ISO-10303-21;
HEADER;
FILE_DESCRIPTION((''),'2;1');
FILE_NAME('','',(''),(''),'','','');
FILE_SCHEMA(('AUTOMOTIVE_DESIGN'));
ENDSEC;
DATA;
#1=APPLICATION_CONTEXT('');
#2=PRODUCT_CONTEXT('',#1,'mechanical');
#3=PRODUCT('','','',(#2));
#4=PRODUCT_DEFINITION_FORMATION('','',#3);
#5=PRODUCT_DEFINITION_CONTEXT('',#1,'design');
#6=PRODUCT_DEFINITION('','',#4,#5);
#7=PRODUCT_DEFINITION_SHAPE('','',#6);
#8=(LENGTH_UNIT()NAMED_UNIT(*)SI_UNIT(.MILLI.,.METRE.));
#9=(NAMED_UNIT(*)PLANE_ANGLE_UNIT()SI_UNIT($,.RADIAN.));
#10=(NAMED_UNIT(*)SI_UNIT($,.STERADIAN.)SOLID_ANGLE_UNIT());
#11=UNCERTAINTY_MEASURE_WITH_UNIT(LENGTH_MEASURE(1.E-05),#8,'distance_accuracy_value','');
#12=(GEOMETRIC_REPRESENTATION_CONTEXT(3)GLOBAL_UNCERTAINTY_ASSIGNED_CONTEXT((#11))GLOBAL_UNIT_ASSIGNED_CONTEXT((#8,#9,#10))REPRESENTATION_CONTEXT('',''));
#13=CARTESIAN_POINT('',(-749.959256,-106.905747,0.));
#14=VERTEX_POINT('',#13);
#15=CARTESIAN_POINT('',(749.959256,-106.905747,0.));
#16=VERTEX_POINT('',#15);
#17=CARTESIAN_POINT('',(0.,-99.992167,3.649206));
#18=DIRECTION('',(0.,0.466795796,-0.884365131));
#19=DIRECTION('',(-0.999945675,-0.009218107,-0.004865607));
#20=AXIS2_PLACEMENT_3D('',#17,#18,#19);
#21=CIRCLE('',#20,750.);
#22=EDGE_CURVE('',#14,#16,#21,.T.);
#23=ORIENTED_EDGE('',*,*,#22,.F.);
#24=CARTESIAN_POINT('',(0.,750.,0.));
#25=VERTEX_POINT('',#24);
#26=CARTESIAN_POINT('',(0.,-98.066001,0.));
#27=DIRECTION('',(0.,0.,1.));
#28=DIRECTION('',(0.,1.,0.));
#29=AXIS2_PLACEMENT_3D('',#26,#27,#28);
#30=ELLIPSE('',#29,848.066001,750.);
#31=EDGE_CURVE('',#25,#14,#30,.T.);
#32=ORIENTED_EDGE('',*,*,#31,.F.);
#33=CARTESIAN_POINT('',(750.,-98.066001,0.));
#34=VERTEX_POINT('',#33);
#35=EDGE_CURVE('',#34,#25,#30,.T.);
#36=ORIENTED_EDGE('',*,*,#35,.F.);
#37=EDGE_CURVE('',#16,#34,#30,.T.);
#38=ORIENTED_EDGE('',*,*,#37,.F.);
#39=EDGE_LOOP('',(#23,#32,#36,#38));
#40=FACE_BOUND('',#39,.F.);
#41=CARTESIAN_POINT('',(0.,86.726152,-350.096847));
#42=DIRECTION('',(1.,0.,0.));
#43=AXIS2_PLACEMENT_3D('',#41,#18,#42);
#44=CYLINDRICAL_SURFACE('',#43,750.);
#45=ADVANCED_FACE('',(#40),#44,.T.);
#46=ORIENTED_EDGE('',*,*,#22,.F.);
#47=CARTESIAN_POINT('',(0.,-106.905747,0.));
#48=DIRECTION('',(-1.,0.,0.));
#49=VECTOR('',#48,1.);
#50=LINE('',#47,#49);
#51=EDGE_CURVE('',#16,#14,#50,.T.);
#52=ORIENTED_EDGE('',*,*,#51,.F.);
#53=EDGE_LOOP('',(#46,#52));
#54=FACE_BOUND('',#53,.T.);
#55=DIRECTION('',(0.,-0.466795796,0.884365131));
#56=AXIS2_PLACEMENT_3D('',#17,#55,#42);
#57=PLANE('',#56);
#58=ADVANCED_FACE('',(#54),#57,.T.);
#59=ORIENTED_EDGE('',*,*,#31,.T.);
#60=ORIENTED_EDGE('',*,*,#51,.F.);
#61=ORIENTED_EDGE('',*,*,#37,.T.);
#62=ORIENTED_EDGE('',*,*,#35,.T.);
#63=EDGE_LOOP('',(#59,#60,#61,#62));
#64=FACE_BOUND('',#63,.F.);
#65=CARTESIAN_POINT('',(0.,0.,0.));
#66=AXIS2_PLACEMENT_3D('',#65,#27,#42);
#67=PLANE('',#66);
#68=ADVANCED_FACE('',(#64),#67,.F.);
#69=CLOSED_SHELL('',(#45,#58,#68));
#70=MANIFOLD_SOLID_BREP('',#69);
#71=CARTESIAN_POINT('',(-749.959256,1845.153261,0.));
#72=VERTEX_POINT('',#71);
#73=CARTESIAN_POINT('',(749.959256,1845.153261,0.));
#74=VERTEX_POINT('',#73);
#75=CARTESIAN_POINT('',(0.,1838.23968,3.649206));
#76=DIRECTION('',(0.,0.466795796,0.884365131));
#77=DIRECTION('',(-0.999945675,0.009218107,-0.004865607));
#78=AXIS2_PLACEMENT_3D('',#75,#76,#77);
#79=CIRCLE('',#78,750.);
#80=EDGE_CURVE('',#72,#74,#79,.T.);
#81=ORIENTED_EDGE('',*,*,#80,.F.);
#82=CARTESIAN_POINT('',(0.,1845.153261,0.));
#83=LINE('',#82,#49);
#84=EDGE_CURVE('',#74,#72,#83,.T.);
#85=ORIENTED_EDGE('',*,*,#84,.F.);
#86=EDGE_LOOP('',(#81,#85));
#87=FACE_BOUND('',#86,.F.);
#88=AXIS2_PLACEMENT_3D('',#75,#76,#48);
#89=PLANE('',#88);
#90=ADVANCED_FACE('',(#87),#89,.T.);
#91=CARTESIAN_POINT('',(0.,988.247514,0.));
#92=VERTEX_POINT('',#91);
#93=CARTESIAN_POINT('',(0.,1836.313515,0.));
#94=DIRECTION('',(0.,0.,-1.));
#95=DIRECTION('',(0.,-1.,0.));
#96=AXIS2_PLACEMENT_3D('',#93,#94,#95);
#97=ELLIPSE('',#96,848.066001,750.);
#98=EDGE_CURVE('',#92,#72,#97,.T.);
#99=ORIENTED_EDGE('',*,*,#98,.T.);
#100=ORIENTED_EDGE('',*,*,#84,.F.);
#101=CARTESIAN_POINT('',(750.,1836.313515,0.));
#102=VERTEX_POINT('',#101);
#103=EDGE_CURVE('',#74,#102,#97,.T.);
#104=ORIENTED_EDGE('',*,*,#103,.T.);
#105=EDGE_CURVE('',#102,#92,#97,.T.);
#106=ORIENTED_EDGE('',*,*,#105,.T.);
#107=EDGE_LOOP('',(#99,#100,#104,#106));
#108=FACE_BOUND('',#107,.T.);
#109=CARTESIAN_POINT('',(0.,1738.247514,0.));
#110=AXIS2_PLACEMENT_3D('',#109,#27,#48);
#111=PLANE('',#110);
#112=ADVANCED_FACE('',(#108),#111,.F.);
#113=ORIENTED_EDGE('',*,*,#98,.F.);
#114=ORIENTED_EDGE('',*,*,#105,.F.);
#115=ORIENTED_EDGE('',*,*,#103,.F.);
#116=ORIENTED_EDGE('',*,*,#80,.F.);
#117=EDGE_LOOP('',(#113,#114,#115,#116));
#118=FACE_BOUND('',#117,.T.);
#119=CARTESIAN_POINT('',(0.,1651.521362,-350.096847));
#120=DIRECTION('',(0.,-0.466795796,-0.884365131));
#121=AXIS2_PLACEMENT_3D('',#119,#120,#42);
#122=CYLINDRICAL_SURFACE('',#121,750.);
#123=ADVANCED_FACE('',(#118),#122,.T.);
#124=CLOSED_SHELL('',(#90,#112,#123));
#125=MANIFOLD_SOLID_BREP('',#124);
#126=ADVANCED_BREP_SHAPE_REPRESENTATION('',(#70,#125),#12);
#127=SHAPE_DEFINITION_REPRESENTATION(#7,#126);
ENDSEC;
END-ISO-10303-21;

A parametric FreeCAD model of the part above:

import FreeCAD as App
import Part
import Sketcher

V = App.Vector
Q = App.Units.Quantity


def add_polygon(sketch, points):
    """Adds a closed chain of lines whose ends are joined by coincident constraints."""
    first, n = sketch.GeometryCount, len(points)
    for a, b in zip(points, points[1:] + points[:1]):
        sketch.addGeometry(Part.LineSegment(App.Vector(*a, 0), App.Vector(*b, 0)), False)
    for i in range(n):
        sketch.addConstraint(Sketcher.Constraint("Coincident", first + i, 2, first + (i + 1) % n, 1))

doc = App.newDocument("Part")
body = doc.addObject("PartDesign::Body", "Body")

sketch1 = body.newObject("Sketcher::SketchObject", "Sketch")
sketch1.AttachmentSupport = (doc.getObject("XY_Plane"), [""])
sketch1.MapMode = "FlatFace"
sketch1.addGeometry(Part.Circle(V(0, 0, 0), V(0, 0, 1), 750), False)
sketch1.addConstraint([
    Sketcher.Constraint("Coincident", 0, 3, -1, 1),
    Sketcher.Constraint("Diameter", 0, Q("1500 mm")),
])
pad1 = body.newObject("PartDesign::Pad", "Pad")
pad1.Profile = sketch1
pad1.Length = 400
body2 = doc.addObject("PartDesign::Body", "Body001")
doc.recompute()

body.Placement = App.Placement(V(0, 86.726152, -350.096847), App.Rotation(V(-1, 0, 0), 332.173495))
boolean = body2.newObject("PartDesign::Boolean", "Boolean")
boolean.Type = "Fuse"
boolean.addObjects([body])

sketch2 = body2.newObject("Sketcher::SketchObject", "Sketch001")
sketch2.AttachmentSupport = (doc.getObject("XY_Plane001"), [""])
sketch2.MapMode = "FlatFace"
add_polygon(sketch2, [(-913, 869), (-913, -869), (913, -869), (913, 869)])
sketch2.addConstraint([
    Sketcher.Constraint("Vertical", 0),
    Sketcher.Constraint("Horizontal", 1),
    Sketcher.Constraint("Vertical", 2),
    Sketcher.Constraint("Horizontal", 3),
    Sketcher.Constraint("Symmetric", 0, 2, 2, 2, -1, 1),
    Sketcher.Constraint("DistanceX", 1, 1, 1, 2, Q("1825.803616 mm")),
    Sketcher.Constraint("DistanceY", 0, 2, 0, 1, Q("1738.247514 mm")),
])
pocket1 = body2.newObject("PartDesign::Pocket", "Pocket")
pocket1.Profile = sketch2
pocket1.Length = 1100
body3 = doc.addObject("PartDesign::Body", "Body002")
doc.recompute()

mirroring = doc.addObject("Part::Mirroring", "Mirroring")
mirroring.Source = body2
mirroring.Base = V(0, 869.123757, 0)
mirroring.Normal = V(0, -1, 0)
body3.BaseFeature = mirroring
doc.recompute()
mirroring.Visibility = False

doc.recompute()
